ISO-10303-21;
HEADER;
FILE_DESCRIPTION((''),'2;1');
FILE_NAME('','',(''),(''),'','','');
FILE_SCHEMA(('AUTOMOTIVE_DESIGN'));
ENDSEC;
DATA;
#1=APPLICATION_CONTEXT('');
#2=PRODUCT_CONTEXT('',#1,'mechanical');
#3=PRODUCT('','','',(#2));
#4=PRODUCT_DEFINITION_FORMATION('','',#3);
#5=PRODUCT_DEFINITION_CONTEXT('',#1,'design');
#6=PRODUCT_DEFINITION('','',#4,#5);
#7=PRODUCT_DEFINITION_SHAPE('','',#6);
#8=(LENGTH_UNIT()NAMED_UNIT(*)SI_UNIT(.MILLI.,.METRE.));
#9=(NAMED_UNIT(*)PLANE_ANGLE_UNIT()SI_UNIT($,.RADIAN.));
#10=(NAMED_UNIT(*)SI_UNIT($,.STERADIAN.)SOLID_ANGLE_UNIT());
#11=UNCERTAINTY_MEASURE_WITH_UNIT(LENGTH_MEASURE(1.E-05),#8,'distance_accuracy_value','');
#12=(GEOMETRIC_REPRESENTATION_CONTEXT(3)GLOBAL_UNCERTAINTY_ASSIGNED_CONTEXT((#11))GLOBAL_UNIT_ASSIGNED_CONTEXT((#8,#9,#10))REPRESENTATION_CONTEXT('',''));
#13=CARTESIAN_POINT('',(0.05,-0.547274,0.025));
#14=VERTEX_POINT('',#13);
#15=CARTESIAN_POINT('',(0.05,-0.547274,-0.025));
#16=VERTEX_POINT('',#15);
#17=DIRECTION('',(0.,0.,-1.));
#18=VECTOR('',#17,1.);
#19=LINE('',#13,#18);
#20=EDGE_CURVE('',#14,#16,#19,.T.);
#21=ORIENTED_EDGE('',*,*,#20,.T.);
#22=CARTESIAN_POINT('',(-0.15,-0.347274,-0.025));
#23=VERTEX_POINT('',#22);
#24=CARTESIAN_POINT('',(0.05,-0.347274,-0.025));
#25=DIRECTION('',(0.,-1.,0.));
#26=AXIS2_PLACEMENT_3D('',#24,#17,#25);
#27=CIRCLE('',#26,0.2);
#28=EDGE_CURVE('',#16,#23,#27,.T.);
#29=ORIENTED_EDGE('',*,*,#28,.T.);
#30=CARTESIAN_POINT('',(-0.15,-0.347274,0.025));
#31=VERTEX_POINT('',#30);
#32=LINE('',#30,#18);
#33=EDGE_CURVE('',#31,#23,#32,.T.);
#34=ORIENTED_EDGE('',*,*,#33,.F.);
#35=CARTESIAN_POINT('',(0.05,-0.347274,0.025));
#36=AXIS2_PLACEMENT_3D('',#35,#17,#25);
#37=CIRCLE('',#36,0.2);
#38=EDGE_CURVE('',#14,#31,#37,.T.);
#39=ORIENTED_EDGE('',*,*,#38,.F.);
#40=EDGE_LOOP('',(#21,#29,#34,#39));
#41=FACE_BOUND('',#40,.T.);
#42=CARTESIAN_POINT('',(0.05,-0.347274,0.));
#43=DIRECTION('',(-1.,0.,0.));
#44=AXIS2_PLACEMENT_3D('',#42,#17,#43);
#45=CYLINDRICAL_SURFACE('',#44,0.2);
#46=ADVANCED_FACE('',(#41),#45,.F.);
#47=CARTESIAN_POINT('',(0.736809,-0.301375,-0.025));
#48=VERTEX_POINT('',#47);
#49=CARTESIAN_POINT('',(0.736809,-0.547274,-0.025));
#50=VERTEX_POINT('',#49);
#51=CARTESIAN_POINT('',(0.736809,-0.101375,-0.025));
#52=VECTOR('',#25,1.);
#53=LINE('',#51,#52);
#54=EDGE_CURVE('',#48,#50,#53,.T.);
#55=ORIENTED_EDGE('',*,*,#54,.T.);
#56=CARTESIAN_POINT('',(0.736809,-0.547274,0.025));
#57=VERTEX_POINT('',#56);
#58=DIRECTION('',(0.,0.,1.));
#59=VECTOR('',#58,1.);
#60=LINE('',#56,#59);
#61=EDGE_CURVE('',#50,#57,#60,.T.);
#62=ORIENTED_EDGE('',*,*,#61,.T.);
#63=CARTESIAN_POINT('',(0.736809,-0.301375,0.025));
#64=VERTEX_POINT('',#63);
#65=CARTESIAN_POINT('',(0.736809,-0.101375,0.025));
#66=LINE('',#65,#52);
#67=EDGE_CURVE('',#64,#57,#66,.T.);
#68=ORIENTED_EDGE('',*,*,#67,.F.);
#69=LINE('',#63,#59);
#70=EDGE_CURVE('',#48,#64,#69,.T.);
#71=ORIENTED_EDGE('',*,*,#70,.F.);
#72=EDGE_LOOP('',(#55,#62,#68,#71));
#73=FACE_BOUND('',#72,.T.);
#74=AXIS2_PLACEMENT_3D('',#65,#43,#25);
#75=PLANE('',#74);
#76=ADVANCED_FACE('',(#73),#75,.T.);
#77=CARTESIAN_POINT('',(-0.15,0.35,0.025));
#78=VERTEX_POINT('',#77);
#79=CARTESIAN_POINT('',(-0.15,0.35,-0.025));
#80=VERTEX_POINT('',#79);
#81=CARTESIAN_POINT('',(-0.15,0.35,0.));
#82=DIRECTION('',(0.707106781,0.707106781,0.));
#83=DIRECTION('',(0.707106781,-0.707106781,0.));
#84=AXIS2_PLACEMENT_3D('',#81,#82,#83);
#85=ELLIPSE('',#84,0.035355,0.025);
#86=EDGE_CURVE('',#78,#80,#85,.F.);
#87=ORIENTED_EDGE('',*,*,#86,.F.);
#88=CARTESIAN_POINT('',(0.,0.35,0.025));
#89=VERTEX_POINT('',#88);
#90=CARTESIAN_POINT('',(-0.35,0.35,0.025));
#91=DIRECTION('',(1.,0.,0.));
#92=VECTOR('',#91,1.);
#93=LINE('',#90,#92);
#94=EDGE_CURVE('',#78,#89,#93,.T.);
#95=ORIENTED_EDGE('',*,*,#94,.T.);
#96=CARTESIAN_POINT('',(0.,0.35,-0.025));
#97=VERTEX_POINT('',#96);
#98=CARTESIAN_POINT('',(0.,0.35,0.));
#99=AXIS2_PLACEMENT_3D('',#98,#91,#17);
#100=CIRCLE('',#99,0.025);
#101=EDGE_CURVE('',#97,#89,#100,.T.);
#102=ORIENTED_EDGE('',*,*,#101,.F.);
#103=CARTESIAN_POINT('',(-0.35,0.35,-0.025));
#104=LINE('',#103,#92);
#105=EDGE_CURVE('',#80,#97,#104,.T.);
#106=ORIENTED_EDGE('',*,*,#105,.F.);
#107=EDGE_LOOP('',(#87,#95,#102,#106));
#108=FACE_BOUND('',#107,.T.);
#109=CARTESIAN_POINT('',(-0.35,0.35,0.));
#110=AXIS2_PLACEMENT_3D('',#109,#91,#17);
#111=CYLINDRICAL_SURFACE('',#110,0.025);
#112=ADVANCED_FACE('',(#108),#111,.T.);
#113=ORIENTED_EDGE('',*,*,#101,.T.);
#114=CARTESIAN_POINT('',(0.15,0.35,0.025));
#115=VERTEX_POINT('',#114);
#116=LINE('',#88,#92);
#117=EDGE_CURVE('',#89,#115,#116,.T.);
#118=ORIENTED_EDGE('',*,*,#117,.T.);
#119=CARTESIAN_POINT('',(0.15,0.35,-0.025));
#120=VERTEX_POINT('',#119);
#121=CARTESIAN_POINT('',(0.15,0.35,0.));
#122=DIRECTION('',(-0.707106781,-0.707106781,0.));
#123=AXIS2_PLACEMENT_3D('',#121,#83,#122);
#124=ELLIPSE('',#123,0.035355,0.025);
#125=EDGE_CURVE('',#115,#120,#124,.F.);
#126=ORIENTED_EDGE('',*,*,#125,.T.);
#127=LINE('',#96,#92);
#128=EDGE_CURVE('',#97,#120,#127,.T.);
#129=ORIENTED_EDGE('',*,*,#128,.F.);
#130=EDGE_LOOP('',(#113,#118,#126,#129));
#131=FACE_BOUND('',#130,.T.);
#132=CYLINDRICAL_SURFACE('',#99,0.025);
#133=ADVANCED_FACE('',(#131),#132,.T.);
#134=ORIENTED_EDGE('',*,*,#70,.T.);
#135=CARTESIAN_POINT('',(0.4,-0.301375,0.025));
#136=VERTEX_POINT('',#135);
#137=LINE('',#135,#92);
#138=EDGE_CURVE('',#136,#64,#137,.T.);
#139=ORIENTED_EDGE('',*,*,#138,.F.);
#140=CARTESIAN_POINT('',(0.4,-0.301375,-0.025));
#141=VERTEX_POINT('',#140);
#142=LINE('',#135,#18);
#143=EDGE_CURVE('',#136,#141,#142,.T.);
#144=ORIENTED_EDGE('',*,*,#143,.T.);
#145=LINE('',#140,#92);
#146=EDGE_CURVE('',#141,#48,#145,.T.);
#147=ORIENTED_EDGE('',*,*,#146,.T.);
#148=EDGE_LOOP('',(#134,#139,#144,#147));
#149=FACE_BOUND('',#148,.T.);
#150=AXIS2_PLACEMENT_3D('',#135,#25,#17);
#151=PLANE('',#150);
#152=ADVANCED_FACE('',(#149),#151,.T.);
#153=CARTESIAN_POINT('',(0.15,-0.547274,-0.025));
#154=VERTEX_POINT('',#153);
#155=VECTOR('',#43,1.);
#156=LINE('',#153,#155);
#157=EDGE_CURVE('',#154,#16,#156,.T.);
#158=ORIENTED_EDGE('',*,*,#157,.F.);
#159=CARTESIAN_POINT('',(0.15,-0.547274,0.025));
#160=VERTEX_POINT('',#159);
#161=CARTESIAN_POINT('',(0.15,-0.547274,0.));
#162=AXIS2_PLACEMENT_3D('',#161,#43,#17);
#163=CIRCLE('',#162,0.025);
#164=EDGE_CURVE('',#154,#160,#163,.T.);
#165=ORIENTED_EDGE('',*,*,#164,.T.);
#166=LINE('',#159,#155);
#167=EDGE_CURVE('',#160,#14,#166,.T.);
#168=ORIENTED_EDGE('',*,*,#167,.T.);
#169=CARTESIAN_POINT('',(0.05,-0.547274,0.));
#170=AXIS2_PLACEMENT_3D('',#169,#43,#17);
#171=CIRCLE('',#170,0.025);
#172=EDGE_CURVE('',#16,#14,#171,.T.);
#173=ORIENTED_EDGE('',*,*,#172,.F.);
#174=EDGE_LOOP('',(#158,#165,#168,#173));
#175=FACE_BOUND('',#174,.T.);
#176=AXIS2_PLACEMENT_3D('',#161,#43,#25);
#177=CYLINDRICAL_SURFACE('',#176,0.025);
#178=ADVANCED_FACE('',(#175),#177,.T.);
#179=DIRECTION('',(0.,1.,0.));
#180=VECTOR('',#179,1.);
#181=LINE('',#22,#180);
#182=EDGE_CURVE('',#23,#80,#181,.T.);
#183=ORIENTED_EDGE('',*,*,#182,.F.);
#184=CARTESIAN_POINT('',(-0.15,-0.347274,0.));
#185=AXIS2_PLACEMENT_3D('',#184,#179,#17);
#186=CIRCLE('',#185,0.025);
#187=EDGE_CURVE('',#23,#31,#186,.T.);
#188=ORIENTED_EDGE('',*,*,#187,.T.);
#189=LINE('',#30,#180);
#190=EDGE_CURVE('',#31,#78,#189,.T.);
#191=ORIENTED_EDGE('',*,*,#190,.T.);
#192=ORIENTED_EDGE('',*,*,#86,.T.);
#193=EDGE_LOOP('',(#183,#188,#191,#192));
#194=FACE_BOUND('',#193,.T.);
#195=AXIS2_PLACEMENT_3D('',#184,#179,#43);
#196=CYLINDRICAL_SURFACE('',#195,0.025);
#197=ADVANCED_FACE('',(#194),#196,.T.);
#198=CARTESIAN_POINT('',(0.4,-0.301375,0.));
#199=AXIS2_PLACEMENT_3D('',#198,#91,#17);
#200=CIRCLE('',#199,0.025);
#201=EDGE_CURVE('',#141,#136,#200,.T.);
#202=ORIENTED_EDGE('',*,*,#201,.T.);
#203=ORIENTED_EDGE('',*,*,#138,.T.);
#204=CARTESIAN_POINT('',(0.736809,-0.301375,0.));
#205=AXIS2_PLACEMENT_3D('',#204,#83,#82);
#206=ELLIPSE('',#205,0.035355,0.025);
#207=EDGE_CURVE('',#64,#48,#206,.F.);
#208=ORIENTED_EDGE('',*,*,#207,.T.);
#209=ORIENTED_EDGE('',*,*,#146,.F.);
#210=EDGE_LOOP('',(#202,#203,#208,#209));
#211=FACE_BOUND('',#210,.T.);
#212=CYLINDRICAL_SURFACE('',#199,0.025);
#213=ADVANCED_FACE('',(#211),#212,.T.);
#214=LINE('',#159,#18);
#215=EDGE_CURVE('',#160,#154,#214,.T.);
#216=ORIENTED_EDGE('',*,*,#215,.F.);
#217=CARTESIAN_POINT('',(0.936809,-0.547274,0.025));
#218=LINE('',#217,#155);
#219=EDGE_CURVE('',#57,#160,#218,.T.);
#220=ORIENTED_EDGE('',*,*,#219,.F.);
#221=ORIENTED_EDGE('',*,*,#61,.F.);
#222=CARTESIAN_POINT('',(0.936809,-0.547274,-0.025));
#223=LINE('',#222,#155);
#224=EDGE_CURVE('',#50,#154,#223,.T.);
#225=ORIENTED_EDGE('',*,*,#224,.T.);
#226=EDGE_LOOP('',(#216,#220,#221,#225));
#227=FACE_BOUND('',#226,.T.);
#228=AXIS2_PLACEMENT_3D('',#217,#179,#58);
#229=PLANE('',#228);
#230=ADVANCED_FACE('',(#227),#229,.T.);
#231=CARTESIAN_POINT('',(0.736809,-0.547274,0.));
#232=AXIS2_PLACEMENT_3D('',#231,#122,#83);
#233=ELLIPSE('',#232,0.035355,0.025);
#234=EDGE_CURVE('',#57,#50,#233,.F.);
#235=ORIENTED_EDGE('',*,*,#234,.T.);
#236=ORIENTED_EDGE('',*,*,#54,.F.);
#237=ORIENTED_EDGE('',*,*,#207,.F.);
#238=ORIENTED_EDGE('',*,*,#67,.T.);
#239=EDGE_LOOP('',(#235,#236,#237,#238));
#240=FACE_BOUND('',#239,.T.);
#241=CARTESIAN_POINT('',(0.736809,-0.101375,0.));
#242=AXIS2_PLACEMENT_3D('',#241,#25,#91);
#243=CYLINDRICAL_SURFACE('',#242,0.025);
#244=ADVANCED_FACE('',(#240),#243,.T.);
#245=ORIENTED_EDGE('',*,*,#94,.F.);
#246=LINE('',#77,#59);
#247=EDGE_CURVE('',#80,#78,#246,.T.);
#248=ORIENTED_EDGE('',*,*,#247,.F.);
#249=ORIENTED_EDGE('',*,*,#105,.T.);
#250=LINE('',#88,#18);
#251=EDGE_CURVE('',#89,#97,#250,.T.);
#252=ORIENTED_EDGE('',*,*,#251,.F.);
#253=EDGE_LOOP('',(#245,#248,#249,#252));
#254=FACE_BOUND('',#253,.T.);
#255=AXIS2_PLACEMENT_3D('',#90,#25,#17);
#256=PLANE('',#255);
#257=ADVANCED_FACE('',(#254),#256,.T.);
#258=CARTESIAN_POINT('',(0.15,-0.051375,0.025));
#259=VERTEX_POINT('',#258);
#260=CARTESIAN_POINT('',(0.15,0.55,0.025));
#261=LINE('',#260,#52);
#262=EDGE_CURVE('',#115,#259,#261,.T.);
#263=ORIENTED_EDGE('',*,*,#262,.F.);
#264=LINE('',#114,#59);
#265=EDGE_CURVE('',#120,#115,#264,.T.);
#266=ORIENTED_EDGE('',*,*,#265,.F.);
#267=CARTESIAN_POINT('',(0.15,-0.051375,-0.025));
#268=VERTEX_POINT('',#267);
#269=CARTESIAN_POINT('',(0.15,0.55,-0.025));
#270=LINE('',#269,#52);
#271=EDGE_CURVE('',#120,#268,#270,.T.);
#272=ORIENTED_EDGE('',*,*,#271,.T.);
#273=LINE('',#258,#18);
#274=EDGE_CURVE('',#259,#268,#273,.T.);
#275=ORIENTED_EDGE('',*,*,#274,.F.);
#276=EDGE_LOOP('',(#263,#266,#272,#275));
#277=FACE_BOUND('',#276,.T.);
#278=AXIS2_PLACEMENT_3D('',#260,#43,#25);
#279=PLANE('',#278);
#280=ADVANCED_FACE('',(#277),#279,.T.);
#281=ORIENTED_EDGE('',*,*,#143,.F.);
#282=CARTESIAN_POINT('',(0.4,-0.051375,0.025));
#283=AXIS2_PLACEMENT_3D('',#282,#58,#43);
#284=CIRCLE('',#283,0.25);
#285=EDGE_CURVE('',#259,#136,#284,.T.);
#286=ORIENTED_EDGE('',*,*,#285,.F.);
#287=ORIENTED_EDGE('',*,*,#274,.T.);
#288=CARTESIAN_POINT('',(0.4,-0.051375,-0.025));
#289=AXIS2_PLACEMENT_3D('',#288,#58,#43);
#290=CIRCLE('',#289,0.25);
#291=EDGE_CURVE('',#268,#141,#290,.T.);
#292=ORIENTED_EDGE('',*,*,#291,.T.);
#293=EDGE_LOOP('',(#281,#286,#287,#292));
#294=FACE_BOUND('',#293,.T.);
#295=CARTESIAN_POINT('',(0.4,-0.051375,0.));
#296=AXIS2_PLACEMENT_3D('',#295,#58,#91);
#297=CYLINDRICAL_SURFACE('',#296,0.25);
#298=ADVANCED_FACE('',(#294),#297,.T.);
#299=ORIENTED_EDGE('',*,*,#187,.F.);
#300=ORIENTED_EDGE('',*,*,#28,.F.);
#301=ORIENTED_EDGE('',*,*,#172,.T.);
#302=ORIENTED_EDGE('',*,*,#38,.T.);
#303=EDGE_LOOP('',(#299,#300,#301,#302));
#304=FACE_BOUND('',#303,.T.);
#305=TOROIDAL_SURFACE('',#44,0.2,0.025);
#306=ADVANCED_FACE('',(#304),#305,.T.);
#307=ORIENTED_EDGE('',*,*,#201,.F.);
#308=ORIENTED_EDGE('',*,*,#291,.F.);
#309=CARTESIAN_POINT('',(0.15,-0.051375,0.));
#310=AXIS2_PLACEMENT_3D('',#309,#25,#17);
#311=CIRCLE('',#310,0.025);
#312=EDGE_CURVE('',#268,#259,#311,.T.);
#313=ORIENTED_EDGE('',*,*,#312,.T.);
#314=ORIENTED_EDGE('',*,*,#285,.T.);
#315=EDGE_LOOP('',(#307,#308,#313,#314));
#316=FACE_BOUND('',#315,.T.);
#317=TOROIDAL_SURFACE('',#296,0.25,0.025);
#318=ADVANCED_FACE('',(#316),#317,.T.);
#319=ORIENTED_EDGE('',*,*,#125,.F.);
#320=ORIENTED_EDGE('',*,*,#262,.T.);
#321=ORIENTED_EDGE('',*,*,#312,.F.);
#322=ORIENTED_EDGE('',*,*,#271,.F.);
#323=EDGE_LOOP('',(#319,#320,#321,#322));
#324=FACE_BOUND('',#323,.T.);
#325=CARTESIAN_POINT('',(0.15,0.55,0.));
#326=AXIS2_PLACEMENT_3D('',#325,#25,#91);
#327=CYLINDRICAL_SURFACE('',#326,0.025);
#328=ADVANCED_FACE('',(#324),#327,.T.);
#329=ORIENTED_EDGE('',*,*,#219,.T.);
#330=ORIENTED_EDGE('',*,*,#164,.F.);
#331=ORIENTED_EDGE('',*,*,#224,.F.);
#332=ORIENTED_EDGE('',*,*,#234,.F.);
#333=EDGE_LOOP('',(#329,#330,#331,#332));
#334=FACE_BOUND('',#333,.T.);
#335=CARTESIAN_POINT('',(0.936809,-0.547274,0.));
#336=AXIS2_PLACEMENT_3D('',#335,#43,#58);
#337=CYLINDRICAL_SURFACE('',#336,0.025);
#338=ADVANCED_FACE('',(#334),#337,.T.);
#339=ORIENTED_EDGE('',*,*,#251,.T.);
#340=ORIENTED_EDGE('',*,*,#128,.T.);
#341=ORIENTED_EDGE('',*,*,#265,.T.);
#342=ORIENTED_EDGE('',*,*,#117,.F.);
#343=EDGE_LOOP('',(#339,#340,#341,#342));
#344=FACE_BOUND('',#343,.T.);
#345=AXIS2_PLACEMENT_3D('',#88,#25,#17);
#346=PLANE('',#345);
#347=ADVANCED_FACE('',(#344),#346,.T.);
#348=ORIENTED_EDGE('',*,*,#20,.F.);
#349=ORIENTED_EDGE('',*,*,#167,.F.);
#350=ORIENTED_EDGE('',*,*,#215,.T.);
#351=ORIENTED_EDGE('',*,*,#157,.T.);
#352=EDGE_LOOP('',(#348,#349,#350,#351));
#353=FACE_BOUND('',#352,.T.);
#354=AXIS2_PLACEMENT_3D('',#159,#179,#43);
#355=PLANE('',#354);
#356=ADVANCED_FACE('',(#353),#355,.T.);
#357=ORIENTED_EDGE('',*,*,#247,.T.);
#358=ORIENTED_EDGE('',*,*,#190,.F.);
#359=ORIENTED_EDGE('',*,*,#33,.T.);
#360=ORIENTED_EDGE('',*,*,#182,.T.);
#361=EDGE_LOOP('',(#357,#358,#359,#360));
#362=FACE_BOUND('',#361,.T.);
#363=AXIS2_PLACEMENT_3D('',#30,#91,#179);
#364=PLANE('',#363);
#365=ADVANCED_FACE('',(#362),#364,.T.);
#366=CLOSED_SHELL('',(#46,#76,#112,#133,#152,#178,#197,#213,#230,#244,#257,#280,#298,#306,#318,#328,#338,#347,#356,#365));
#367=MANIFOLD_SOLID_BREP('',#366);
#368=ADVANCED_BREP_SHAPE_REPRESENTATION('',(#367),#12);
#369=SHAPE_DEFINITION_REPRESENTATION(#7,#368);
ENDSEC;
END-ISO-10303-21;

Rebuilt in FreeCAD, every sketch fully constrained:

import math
import FreeCAD as App
import Part
import Sketcher
from FreeCAD import Vector
Q = App.Units.Quantity

doc = App.newDocument("Part")
body = doc.addObject("PartDesign::Body", "Body")

# Sketch on YZ plane
sketch1 = doc.addObject("Sketcher::SketchObject", "Sketch")
body.addObject(sketch1)
sketch1.AttachmentSupport = (doc.YZ_Plane, [""])
sketch1.MapMode = "FlatFace"
sketch1.addGeometry(Part.LineSegment(Vector(0.35, 0.025, 0), Vector(0.35, -0.025, 0)), False)
sketch1.addGeometry(Part.ArcOfCircle(Part.Circle(Vector(0.35, 0, 0), Vector(0, 0, 1), 0.025), math.radians(-90), math.radians(90)), False)
sketch1.addConstraint(Sketcher.Constraint("Coincident", 0, 1, 1, 2))
sketch1.addConstraint(Sketcher.Constraint("Coincident", 1, 1, 0, 2))
sketch1.addConstraint(Sketcher.Constraint("Vertical", 0))
sketch1.addConstraint(Sketcher.Constraint("PointOnObject", 1, 3, -1))
sketch1.addConstraint(Sketcher.Constraint("Vertical", 1, 3, 0, 1))
sketch1.addConstraint(Sketcher.Constraint("Radius", 1, Q("0.025 mm")))
sketch1.addConstraint(Sketcher.Constraint("DistanceX", -1, 1, 1, 3, Q("0.35 mm")))

# Sketch on XY plane
sketch2 = doc.addObject("Sketcher::SketchObject", "Sketch001")
body.addObject(sketch2)
sketch2.AttachmentSupport = (doc.XY_Plane, [""])
sketch2.MapMode = "FlatFace"
sketch2.addGeometry(Part.LineSegment(Vector(-0.15, 0.35, 0), Vector(0.15, 0.35, 0)), False)
sketch2.addGeometry(Part.LineSegment(Vector(0.15, 0.35, 0), Vector(0.15, -0.05, 0)), False)
sketch2.addGeometry(Part.ArcOfCircle(Part.Circle(Vector(0.4, -0.05, 0), Vector(0, 0, 1), 0.25), math.radians(180), math.radians(270)), False)
sketch2.addGeometry(Part.LineSegment(Vector(0.4, -0.3, 0), Vector(0.74, -0.3, 0)), False)
sketch2.addGeometry(Part.LineSegment(Vector(0.74, -0.3, 0), Vector(0.74, -0.55, 0)), False)
sketch2.addGeometry(Part.LineSegment(Vector(0.74, -0.55, 0), Vector(0.05, -0.55, 0)), False)
sketch2.addGeometry(Part.ArcOfCircle(Part.Circle(Vector(0.05, -0.35, 0), Vector(0, 0, 1), 0.2), math.radians(-180), math.radians(-90)), False)
sketch2.addGeometry(Part.LineSegment(Vector(-0.15, -0.35, 0), Vector(-0.15, 0.35, 0)), False)
sketch2.addConstraint(Sketcher.Constraint("Coincident", 0, 2, 1, 1))
sketch2.addConstraint(Sketcher.Constraint("Tangent", 1, 2, 2, 1))
sketch2.addConstraint(Sketcher.Constraint("Tangent", 2, 2, 3, 1))
sketch2.addConstraint(Sketcher.Constraint("Coincident", 3, 2, 4, 1))
sketch2.addConstraint(Sketcher.Constraint("Coincident", 4, 2, 5, 1))
sketch2.addConstraint(Sketcher.Constraint("Tangent", 5, 2, 6, 2))
sketch2.addConstraint(Sketcher.Constraint("Tangent", 6, 1, 7, 1))
sketch2.addConstraint(Sketcher.Constraint("Coincident", 7, 2, 0, 1))
sketch2.addConstraint(Sketcher.Constraint("Horizontal", 0))
sketch2.addConstraint(Sketcher.Constraint("Vertical", 1))
sketch2.addConstraint(Sketcher.Constraint("Horizontal", 3))
sketch2.addConstraint(Sketcher.Constraint("Vertical", 4))
sketch2.addConstraint(Sketcher.Constraint("Horizontal", 5))
sketch2.addConstraint(Sketcher.Constraint("Vertical", 7))
sketch2.addConstraint(Sketcher.Constraint("Radius", 6, Q("0.2 mm")))
sketch2.addConstraint(Sketcher.Constraint("Radius", 2, Q("0.25 mm")))
sketch2.addConstraint(Sketcher.Constraint("DistanceX", 0, 1, 0, 2, Q("0.3 mm")))
sketch2.addConstraint(Sketcher.Constraint("DistanceX", -1, 1, 2, 3, Q("0.4 mm")))
sketch2.addConstraint(Sketcher.Constraint("DistanceY", -1, 1, 0, 2, Q("0.35 mm")))
sketch2.addConstraint(Sketcher.Constraint("DistanceY", 4, 2, 4, 1, Q("0.245899 mm")))
sketch2.addConstraint(Sketcher.Constraint("DistanceX", 3, 1, 3, 2, Q("0.336809 mm")))
sketch2.addConstraint(Sketcher.Constraint("DistanceY", 1, 2, 1, 1, Q("0.401375 mm")))
doc.recompute()

additivepipe = doc.addObject("PartDesign::AdditivePipe", "AdditivePipe")
body.addObject(additivepipe)
additivepipe.Profile = sketch1
additivepipe.Spine = (sketch2, ["Edge1", "Edge2", "Edge3", "Edge4", "Edge5", "Edge6", "Edge7", "Edge8"])
additivepipe.Transition = "Right corner"

doc.recompute()
